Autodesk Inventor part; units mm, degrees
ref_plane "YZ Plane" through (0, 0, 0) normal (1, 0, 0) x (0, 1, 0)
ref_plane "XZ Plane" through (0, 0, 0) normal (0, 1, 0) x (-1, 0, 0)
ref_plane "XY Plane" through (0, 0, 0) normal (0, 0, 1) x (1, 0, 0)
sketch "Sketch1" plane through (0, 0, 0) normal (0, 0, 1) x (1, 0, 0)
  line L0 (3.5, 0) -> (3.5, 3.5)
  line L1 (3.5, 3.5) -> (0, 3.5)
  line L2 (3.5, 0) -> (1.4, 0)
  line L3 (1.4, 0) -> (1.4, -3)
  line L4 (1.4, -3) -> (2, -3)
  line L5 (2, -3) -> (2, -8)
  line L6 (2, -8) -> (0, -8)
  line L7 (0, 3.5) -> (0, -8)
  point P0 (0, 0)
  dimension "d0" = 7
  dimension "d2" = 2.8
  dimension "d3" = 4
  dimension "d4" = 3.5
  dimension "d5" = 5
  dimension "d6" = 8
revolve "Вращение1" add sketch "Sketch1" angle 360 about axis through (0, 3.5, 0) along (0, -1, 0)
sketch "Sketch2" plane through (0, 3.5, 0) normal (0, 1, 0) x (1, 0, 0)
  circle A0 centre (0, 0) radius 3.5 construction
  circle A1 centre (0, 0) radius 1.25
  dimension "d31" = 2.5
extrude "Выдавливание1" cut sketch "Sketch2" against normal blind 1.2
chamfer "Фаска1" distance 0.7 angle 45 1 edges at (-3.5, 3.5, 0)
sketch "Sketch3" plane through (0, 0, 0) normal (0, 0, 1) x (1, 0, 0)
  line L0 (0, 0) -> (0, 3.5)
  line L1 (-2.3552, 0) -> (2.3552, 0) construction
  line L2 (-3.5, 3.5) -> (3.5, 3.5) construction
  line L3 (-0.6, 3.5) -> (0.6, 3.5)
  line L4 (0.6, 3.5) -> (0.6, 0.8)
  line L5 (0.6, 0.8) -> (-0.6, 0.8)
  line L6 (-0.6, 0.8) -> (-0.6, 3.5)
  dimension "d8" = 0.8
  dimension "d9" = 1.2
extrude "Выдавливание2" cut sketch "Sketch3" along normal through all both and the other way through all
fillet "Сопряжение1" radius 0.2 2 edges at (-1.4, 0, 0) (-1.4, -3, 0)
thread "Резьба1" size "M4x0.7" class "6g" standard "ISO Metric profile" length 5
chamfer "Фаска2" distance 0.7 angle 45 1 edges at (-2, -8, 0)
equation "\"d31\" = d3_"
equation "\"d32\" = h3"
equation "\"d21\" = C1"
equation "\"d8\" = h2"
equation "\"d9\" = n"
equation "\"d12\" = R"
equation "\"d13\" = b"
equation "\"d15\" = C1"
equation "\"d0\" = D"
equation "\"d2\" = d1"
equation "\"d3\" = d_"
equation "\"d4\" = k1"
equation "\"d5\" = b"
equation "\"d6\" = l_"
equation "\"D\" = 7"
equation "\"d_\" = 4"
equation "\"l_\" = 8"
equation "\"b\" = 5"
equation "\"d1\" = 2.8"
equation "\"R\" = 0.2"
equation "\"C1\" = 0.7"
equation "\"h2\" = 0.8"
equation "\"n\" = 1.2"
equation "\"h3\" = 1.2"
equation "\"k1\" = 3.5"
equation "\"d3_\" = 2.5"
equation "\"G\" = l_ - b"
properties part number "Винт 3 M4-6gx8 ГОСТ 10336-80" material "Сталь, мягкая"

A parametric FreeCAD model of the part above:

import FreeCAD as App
import Part
import Sketcher
from FreeCAD import Vector


def edges_at(feature, points):
    """Names of the edges that pass closest to the given points."""
    edges = feature.Shape.Edges
    near = lambda p: min(range(len(edges)), key=lambda i: edges[i].distToShape(Part.Vertex(*p))[0])
    return sorted({f"Edge{near(p) + 1}" for p in points})

doc = App.newDocument("Part")
body = doc.addObject("PartDesign::Body", "Body")

sketch1 = doc.addObject("Sketcher::SketchObject", "Sketch")
body.addObject(sketch1)
sketch1.AttachmentSupport = (doc.XY_Plane, [""])
sketch1.MapMode = "FlatFace"
sketch1.addGeometry([
    Part.LineSegment(Vector(1.4, 0, 0), Vector(3.5, 0, 0)),
    Part.LineSegment(Vector(3.5, 0, 0), Vector(3.5, 3.5, 0)),
    Part.LineSegment(Vector(3.5, 3.5, 0), Vector(0, 3.5, 0)),
    Part.LineSegment(Vector(0, 3.5, 0), Vector(0, -8, 0)),
    Part.LineSegment(Vector(0, -8, 0), Vector(2, -8, 0)),
    Part.LineSegment(Vector(2, -8, 0), Vector(2, -3, 0)),
    Part.LineSegment(Vector(2, -3, 0), Vector(1.4, -3, 0)),
    Part.LineSegment(Vector(1.4, -3, 0), Vector(1.4, 0, 0)),
], False)
sketch1.addConstraint([
    Sketcher.Constraint("Coincident", 0, 2, 1, 1),
    Sketcher.Constraint("Coincident", 1, 2, 2, 1),
    Sketcher.Constraint("Coincident", 2, 2, 3, 1),
    Sketcher.Constraint("Coincident", 3, 2, 4, 1),
    Sketcher.Constraint("Coincident", 4, 2, 5, 1),
    Sketcher.Constraint("Coincident", 5, 2, 6, 1),
    Sketcher.Constraint("Coincident", 6, 2, 7, 1),
    Sketcher.Constraint("Coincident", 7, 2, 0, 1),
    Sketcher.Constraint("Horizontal", 0),
    Sketcher.Constraint("Vertical", 1),
    Sketcher.Constraint("Horizontal", 2),
    Sketcher.Constraint("Vertical", 3),
    Sketcher.Constraint("Horizontal", 4),
    Sketcher.Constraint("Vertical", 5),
    Sketcher.Constraint("Horizontal", 6),
    Sketcher.Constraint("Vertical", 7),
    Sketcher.Constraint("PointOnObject", 0, 2, -1),
    Sketcher.Constraint("PointOnObject", 2, 2, -2),
    Sketcher.Constraint("Equal", 2, 1),
    Sketcher.Constraint("DistanceY", 5, 1, 5, 2, 5.0),
    Sketcher.Constraint("DistanceX", 2, 2, 2, 1, 3.5),
    Sketcher.Constraint("DistanceY", 3, 2, -1, 1, 8.0),
    Sketcher.Constraint("DistanceX", 4, 1, 4, 2, 2.0),
    Sketcher.Constraint("DistanceX", 0, 1, 0, 2, 2.1),
])
revolution = doc.addObject("PartDesign::Revolution", "Revolution")
body.addObject(revolution)
revolution.Profile = sketch1
revolution.ReferenceAxis = (sketch1, ["V_Axis"])
revolution.Angle = 360

sketch2 = doc.addObject("Sketcher::SketchObject", "Sketch001")
body.addObject(sketch2)
sketch2.AttachmentSupport = (doc.XZ_Plane, [""])
sketch2.MapMode = "FlatFace"
sketch2.AttachmentOffset = App.Placement(Vector(0, 0, -3.5), App.Rotation())
sketch2.addGeometry(Part.Circle(Vector(0, 0, 0), Vector(0, 0, 1), 1.25), False)
sketch2.addConstraint([
    Sketcher.Constraint("Coincident", 0, 3, -1, 1),
    Sketcher.Constraint("Diameter", 0, 2.5),
])
pocket1 = doc.addObject("PartDesign::Pocket", "Pocket")
body.addObject(pocket1)
pocket1.Profile = sketch2
pocket1.Length = 1.2
pocket1.Reversed = True
doc.recompute()

chamfer = doc.addObject("PartDesign::Chamfer", "Chamfer")
body.addObject(chamfer)
chamfer.Base = (pocket1, edges_at(pocket1, [(-3.5, 3.5, 0)]))
chamfer.Size = 0.7

sketch3 = doc.addObject("Sketcher::SketchObject", "Sketch002")
body.addObject(sketch3)
sketch3.AttachmentSupport = (doc.XY_Plane, [""])
sketch3.MapMode = "FlatFace"
sketch3.addGeometry([
    Part.LineSegment(Vector(-0.6, 0.8, 0), Vector(0.6, 0.8, 0)),
    Part.LineSegment(Vector(0.6, 0.8, 0), Vector(0.6, 3.5, 0)),
    Part.LineSegment(Vector(0.6, 3.5, 0), Vector(-0.6, 3.5, 0)),
    Part.LineSegment(Vector(-0.6, 3.5, 0), Vector(-0.6, 0.8, 0)),
], False)
sketch3.addConstraint([
    Sketcher.Constraint("Coincident", 0, 2, 1, 1),
    Sketcher.Constraint("Coincident", 1, 2, 2, 1),
    Sketcher.Constraint("Coincident", 2, 2, 3, 1),
    Sketcher.Constraint("Coincident", 3, 2, 0, 1),
    Sketcher.Constraint("Horizontal", 0),
    Sketcher.Constraint("Vertical", 1),
    Sketcher.Constraint("Horizontal", 2),
    Sketcher.Constraint("Vertical", 3),
    Sketcher.Constraint("DistanceX", 0, 1, 0, 2, 1.2),
    Sketcher.Constraint("DistanceY", -1, 1, 0, 2, 0.8),
    Sketcher.Constraint("DistanceY", 1, 1, 1, 2, 2.7),
    Sketcher.Constraint("DistanceX", -1, 1, 0, 2, 0.6),
])
pocket2 = doc.addObject("PartDesign::Pocket", "Pocket001")
body.addObject(pocket2)
pocket2.Profile = sketch3
pocket2.Type = "ThroughAll"
pocket2.Midplane = True
doc.recompute()

fillet = doc.addObject("PartDesign::Fillet", "Fillet")
body.addObject(fillet)
fillet.Base = (pocket2, edges_at(pocket2, [(-1.4, 0, 0), (-1.4, -3, 0)]))
fillet.Radius = 0.2
doc.recompute()

chamfer2 = doc.addObject("PartDesign::Chamfer", "Chamfer001")
body.addObject(chamfer2)
chamfer2.Base = (fillet, edges_at(fillet, [(-2, -8, 0)]))
chamfer2.Size = 0.7

doc.recompute()
